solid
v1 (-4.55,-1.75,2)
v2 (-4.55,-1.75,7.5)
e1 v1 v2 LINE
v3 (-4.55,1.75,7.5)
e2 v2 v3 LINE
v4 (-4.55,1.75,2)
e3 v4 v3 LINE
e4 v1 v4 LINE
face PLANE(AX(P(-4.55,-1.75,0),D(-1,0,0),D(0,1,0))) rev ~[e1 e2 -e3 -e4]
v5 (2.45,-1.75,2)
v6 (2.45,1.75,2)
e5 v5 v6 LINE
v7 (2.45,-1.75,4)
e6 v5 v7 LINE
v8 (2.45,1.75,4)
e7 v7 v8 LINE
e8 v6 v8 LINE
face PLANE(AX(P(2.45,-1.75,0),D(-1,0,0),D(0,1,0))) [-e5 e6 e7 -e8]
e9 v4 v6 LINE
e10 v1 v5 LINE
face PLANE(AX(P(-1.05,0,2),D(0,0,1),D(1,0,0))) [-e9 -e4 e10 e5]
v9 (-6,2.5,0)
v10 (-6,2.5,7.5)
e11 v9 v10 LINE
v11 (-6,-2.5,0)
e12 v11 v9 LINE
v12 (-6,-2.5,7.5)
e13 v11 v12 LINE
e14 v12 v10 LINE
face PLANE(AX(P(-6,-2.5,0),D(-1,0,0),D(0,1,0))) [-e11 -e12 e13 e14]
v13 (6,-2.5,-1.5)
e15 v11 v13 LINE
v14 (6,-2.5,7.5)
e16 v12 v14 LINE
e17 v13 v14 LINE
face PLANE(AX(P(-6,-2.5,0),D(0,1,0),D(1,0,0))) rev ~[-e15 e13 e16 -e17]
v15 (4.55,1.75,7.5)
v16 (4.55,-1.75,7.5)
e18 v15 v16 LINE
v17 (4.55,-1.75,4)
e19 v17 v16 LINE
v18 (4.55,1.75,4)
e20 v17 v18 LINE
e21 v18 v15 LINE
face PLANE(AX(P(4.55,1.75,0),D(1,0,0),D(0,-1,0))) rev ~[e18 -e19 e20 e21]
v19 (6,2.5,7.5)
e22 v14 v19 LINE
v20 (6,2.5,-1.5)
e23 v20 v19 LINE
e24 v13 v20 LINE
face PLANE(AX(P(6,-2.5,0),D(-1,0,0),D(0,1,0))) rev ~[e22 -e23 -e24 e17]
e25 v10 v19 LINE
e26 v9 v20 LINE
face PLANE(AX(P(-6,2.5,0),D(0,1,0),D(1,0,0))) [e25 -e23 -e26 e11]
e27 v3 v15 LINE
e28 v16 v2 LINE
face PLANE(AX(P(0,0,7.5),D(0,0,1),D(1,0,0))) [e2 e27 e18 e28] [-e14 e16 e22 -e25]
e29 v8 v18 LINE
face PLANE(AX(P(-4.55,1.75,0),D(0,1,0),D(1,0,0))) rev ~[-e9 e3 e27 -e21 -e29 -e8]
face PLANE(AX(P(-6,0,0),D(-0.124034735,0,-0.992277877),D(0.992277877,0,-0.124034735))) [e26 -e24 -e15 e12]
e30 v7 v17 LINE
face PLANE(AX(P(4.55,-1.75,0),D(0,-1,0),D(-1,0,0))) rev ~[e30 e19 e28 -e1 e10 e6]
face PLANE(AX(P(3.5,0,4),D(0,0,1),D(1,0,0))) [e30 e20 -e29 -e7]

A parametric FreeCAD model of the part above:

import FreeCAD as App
import Part
import Sketcher

doc = App.newDocument("Part")
body = doc.addObject("PartDesign::Body", "Body")

# Sketch on XY plane
sketch1 = doc.addObject("Sketcher::SketchObject", "Sketch")
body.addObject(sketch1)
sketch1.AttachmentSupport = (doc.XY_Plane, [""])
sketch1.MapMode = "FlatFace"
sketch1.addGeometry(Part.LineSegment(App.Vector(-4.5, 1.8, 0), App.Vector(-4.5, -1.8, 0)), False)
sketch1.addGeometry(Part.LineSegment(App.Vector(-4.5, -1.8, 0), App.Vector(2.5, -1.8, 0)), False)
sketch1.addGeometry(Part.LineSegment(App.Vector(2.5, -1.8, 0), App.Vector(2.5, 1.8, 0)), False)
sketch1.addGeometry(Part.LineSegment(App.Vector(2.5, 1.8, 0), App.Vector(-4.5, 1.8, 0)), False)
sketch1.addConstraint(Sketcher.Constraint("Coincident", 0, 2, 1, 1))
sketch1.addConstraint(Sketcher.Constraint("Coincident", 1, 2, 2, 1))
sketch1.addConstraint(Sketcher.Constraint("Coincident", 2, 2, 3, 1))
sketch1.addConstraint(Sketcher.Constraint("Coincident", 3, 2, 0, 1))
sketch1.addConstraint(Sketcher.Constraint("Vertical", 0))
sketch1.addConstraint(Sketcher.Constraint("Horizontal", 1))
sketch1.addConstraint(Sketcher.Constraint("Vertical", 2))
sketch1.addConstraint(Sketcher.Constraint("Horizontal", 3))
sketch1.addConstraint(Sketcher.Constraint("DistanceX", 1, 1, 1, 2, 7.0))
sketch1.addConstraint(Sketcher.Constraint("DistanceY", 0, 2, 0, 1, 3.5))
sketch1.addConstraint(Sketcher.Constraint("DistanceX", 0, 2, -1, 1, 4.55))
sketch1.addConstraint(Sketcher.Constraint("DistanceY", 0, 2, -1, 1, 1.75))
pad1 = doc.addObject("PartDesign::Pad", "Pad")
body.addObject(pad1)
pad1.Profile = sketch1
pad1.Length = 2

# Sketch on XY plane
sketch2 = doc.addObject("Sketcher::SketchObject", "Sketch001")
body.addObject(sketch2)
sketch2.AttachmentSupport = (doc.XY_Plane, [""])
sketch2.MapMode = "FlatFace"
sketch2.addGeometry(Part.LineSegment(App.Vector(-6, 2.5, 0), App.Vector(-6, -2.5, 0)), False)
sketch2.addGeometry(Part.LineSegment(App.Vector(-6, -2.5, 0), App.Vector(6, -2.5, 0)), False)
sketch2.addGeometry(Part.LineSegment(App.Vector(6, -2.5, 0), App.Vector(6, 2.5, 0)), False)
sketch2.addGeometry(Part.LineSegment(App.Vector(6, 2.5, 0), App.Vector(-6, 2.5, 0)), False)
sketch2.addGeometry(Part.LineSegment(App.Vector(-4.5, 1.8, 0), App.Vector(4.5, 1.8, 0)), False)
sketch2.addGeometry(Part.LineSegment(App.Vector(4.5, 1.8, 0), App.Vector(4.5, -1.8, 0)), False)
sketch2.addGeometry(Part.LineSegment(App.Vector(4.5, -1.8, 0), App.Vector(-4.5, -1.8, 0)), False)
sketch2.addGeometry(Part.LineSegment(App.Vector(-4.5, -1.8, 0), App.Vector(-4.5, 1.8, 0)), False)
sketch2.addConstraint(Sketcher.Constraint("Coincident", 0, 2, 1, 1))
sketch2.addConstraint(Sketcher.Constraint("Coincident", 1, 2, 2, 1))
sketch2.addConstraint(Sketcher.Constraint("Coincident", 2, 2, 3, 1))
sketch2.addConstraint(Sketcher.Constraint("Coincident", 3, 2, 0, 1))
sketch2.addConstraint(Sketcher.Constraint("Coincident", 4, 2, 5, 1))
sketch2.addConstraint(Sketcher.Constraint("Coincident", 5, 2, 6, 1))
sketch2.addConstraint(Sketcher.Constraint("Coincident", 6, 2, 7, 1))
sketch2.addConstraint(Sketcher.Constraint("Coincident", 7, 2, 4, 1))
sketch2.addConstraint(Sketcher.Constraint("Vertical", 0))
sketch2.addConstraint(Sketcher.Constraint("Horizontal", 1))
sketch2.addConstraint(Sketcher.Constraint("Vertical", 2))
sketch2.addConstraint(Sketcher.Constraint("Horizontal", 3))
sketch2.addConstraint(Sketcher.Constraint("Horizontal", 4))
sketch2.addConstraint(Sketcher.Constraint("Vertical", 5))
sketch2.addConstraint(Sketcher.Constraint("Horizontal", 6))
sketch2.addConstraint(Sketcher.Constraint("Vertical", 7))
sketch2.addConstraint(Sketcher.Constraint("Symmetric", 0, 2, 2, 2, -1, 1))
sketch2.addConstraint(Sketcher.Constraint("Symmetric", 4, 2, 6, 2, -1, 1))
sketch2.addConstraint(Sketcher.Constraint("DistanceX", 1, 1, 1, 2, 12.0))
sketch2.addConstraint(Sketcher.Constraint("DistanceY", 0, 2, 0, 1, 5.0))
sketch2.addConstraint(Sketcher.Constraint("DistanceX", 4, 1, 4, 2, 9.1))
sketch2.addConstraint(Sketcher.Constraint("DistanceY", 5, 2, 5, 1, 3.5))
pad2 = doc.addObject("PartDesign::Pad", "Pad001")
body.addObject(pad2)
pad2.Profile = sketch2
pad2.Length = 7.5

# Sketch on XZ plane
sketch3 = doc.addObject("Sketcher::SketchObject", "Sketch002")
body.addObject(sketch3)
sketch3.AttachmentSupport = (doc.XZ_Plane, [""])
sketch3.MapMode = "FlatFace"
sketch3.addGeometry(Part.LineSegment(App.Vector(6, 0, 0), App.Vector(-6, 0, 0)), False)
sketch3.addGeometry(Part.LineSegment(App.Vector(-6, 0, 0), App.Vector(6, -1.5, 0)), False)
sketch3.addGeometry(Part.LineSegment(App.Vector(6, -1.5, 0), App.Vector(6, 0, 0)), False)
sketch3.addConstraint(Sketcher.Constraint("Coincident", 0, 2, 1, 1))
sketch3.addConstraint(Sketcher.Constraint("Coincident", 1, 2, 2, 1))
sketch3.addConstraint(Sketcher.Constraint("Coincident", 2, 2, 0, 1))
sketch3.addConstraint(Sketcher.Constraint("Horizontal", 0))
sketch3.addConstraint(Sketcher.Constraint("Vertical", 2))
sketch3.addConstraint(Sketcher.Constraint("Symmetric", 0, 2, 2, 2, -1, 1))
sketch3.addConstraint(Sketcher.Constraint("DistanceX", 0, 2, 0, 1, 12.0))
sketch3.addConstraint(Sketcher.Constraint("DistanceY", 2, 1, 2, 2, 1.5))
pad3 = doc.addObject("PartDesign::Pad", "Pad002")
body.addObject(pad3)
pad3.Profile = sketch3
pad3.Length = 5
pad3.Midplane = True

# Sketch on XY plane
sketch4 = doc.addObject("Sketcher::SketchObject", "Sketch003")
body.addObject(sketch4)
sketch4.AttachmentSupport = (doc.XY_Plane, [""])
sketch4.MapMode = "FlatFace"
sketch4.addGeometry(Part.LineSegment(App.Vector(2.5, 1.8, 0), App.Vector(2.5, -1.8, 0)), False)
sketch4.addGeometry(Part.LineSegment(App.Vector(2.5, -1.8, 0), App.Vector(4.5, -1.8, 0)), False)
sketch4.addGeometry(Part.LineSegment(App.Vector(4.5, -1.8, 0), App.Vector(4.5, 1.8, 0)), False)
sketch4.addGeometry(Part.LineSegment(App.Vector(4.5, 1.8, 0), App.Vector(2.5, 1.8, 0)), False)
sketch4.addConstraint(Sketcher.Constraint("Coincident", 0, 2, 1, 1))
sketch4.addConstraint(Sketcher.Constraint("Coincident", 1, 2, 2, 1))
sketch4.addConstraint(Sketcher.Constraint("Coincident", 2, 2, 3, 1))
sketch4.addConstraint(Sketcher.Constraint("Coincident", 3, 2, 0, 1))
sketch4.addConstraint(Sketcher.Constraint("Vertical", 0))
sketch4.addConstraint(Sketcher.Constraint("Horizontal", 1))
sketch4.addConstraint(Sketcher.Constraint("Vertical", 2))
sketch4.addConstraint(Sketcher.Constraint("Horizontal", 3))
sketch4.addConstraint(Sketcher.Constraint("DistanceX", 1, 1, 1, 2, 2.1))
sketch4.addConstraint(Sketcher.Constraint("DistanceY", 0, 2, 0, 1, 3.5))
sketch4.addConstraint(Sketcher.Constraint("DistanceX", -1, 1, 0, 2, 2.45))
sketch4.addConstraint(Sketcher.Constraint("DistanceY", 0, 2, -1, 1, 1.75))
pad4 = doc.addObject("PartDesign::Pad", "Pad003")
body.addObject(pad4)
pad4.Profile = sketch4
pad4.Length = 4

doc.recompute()
